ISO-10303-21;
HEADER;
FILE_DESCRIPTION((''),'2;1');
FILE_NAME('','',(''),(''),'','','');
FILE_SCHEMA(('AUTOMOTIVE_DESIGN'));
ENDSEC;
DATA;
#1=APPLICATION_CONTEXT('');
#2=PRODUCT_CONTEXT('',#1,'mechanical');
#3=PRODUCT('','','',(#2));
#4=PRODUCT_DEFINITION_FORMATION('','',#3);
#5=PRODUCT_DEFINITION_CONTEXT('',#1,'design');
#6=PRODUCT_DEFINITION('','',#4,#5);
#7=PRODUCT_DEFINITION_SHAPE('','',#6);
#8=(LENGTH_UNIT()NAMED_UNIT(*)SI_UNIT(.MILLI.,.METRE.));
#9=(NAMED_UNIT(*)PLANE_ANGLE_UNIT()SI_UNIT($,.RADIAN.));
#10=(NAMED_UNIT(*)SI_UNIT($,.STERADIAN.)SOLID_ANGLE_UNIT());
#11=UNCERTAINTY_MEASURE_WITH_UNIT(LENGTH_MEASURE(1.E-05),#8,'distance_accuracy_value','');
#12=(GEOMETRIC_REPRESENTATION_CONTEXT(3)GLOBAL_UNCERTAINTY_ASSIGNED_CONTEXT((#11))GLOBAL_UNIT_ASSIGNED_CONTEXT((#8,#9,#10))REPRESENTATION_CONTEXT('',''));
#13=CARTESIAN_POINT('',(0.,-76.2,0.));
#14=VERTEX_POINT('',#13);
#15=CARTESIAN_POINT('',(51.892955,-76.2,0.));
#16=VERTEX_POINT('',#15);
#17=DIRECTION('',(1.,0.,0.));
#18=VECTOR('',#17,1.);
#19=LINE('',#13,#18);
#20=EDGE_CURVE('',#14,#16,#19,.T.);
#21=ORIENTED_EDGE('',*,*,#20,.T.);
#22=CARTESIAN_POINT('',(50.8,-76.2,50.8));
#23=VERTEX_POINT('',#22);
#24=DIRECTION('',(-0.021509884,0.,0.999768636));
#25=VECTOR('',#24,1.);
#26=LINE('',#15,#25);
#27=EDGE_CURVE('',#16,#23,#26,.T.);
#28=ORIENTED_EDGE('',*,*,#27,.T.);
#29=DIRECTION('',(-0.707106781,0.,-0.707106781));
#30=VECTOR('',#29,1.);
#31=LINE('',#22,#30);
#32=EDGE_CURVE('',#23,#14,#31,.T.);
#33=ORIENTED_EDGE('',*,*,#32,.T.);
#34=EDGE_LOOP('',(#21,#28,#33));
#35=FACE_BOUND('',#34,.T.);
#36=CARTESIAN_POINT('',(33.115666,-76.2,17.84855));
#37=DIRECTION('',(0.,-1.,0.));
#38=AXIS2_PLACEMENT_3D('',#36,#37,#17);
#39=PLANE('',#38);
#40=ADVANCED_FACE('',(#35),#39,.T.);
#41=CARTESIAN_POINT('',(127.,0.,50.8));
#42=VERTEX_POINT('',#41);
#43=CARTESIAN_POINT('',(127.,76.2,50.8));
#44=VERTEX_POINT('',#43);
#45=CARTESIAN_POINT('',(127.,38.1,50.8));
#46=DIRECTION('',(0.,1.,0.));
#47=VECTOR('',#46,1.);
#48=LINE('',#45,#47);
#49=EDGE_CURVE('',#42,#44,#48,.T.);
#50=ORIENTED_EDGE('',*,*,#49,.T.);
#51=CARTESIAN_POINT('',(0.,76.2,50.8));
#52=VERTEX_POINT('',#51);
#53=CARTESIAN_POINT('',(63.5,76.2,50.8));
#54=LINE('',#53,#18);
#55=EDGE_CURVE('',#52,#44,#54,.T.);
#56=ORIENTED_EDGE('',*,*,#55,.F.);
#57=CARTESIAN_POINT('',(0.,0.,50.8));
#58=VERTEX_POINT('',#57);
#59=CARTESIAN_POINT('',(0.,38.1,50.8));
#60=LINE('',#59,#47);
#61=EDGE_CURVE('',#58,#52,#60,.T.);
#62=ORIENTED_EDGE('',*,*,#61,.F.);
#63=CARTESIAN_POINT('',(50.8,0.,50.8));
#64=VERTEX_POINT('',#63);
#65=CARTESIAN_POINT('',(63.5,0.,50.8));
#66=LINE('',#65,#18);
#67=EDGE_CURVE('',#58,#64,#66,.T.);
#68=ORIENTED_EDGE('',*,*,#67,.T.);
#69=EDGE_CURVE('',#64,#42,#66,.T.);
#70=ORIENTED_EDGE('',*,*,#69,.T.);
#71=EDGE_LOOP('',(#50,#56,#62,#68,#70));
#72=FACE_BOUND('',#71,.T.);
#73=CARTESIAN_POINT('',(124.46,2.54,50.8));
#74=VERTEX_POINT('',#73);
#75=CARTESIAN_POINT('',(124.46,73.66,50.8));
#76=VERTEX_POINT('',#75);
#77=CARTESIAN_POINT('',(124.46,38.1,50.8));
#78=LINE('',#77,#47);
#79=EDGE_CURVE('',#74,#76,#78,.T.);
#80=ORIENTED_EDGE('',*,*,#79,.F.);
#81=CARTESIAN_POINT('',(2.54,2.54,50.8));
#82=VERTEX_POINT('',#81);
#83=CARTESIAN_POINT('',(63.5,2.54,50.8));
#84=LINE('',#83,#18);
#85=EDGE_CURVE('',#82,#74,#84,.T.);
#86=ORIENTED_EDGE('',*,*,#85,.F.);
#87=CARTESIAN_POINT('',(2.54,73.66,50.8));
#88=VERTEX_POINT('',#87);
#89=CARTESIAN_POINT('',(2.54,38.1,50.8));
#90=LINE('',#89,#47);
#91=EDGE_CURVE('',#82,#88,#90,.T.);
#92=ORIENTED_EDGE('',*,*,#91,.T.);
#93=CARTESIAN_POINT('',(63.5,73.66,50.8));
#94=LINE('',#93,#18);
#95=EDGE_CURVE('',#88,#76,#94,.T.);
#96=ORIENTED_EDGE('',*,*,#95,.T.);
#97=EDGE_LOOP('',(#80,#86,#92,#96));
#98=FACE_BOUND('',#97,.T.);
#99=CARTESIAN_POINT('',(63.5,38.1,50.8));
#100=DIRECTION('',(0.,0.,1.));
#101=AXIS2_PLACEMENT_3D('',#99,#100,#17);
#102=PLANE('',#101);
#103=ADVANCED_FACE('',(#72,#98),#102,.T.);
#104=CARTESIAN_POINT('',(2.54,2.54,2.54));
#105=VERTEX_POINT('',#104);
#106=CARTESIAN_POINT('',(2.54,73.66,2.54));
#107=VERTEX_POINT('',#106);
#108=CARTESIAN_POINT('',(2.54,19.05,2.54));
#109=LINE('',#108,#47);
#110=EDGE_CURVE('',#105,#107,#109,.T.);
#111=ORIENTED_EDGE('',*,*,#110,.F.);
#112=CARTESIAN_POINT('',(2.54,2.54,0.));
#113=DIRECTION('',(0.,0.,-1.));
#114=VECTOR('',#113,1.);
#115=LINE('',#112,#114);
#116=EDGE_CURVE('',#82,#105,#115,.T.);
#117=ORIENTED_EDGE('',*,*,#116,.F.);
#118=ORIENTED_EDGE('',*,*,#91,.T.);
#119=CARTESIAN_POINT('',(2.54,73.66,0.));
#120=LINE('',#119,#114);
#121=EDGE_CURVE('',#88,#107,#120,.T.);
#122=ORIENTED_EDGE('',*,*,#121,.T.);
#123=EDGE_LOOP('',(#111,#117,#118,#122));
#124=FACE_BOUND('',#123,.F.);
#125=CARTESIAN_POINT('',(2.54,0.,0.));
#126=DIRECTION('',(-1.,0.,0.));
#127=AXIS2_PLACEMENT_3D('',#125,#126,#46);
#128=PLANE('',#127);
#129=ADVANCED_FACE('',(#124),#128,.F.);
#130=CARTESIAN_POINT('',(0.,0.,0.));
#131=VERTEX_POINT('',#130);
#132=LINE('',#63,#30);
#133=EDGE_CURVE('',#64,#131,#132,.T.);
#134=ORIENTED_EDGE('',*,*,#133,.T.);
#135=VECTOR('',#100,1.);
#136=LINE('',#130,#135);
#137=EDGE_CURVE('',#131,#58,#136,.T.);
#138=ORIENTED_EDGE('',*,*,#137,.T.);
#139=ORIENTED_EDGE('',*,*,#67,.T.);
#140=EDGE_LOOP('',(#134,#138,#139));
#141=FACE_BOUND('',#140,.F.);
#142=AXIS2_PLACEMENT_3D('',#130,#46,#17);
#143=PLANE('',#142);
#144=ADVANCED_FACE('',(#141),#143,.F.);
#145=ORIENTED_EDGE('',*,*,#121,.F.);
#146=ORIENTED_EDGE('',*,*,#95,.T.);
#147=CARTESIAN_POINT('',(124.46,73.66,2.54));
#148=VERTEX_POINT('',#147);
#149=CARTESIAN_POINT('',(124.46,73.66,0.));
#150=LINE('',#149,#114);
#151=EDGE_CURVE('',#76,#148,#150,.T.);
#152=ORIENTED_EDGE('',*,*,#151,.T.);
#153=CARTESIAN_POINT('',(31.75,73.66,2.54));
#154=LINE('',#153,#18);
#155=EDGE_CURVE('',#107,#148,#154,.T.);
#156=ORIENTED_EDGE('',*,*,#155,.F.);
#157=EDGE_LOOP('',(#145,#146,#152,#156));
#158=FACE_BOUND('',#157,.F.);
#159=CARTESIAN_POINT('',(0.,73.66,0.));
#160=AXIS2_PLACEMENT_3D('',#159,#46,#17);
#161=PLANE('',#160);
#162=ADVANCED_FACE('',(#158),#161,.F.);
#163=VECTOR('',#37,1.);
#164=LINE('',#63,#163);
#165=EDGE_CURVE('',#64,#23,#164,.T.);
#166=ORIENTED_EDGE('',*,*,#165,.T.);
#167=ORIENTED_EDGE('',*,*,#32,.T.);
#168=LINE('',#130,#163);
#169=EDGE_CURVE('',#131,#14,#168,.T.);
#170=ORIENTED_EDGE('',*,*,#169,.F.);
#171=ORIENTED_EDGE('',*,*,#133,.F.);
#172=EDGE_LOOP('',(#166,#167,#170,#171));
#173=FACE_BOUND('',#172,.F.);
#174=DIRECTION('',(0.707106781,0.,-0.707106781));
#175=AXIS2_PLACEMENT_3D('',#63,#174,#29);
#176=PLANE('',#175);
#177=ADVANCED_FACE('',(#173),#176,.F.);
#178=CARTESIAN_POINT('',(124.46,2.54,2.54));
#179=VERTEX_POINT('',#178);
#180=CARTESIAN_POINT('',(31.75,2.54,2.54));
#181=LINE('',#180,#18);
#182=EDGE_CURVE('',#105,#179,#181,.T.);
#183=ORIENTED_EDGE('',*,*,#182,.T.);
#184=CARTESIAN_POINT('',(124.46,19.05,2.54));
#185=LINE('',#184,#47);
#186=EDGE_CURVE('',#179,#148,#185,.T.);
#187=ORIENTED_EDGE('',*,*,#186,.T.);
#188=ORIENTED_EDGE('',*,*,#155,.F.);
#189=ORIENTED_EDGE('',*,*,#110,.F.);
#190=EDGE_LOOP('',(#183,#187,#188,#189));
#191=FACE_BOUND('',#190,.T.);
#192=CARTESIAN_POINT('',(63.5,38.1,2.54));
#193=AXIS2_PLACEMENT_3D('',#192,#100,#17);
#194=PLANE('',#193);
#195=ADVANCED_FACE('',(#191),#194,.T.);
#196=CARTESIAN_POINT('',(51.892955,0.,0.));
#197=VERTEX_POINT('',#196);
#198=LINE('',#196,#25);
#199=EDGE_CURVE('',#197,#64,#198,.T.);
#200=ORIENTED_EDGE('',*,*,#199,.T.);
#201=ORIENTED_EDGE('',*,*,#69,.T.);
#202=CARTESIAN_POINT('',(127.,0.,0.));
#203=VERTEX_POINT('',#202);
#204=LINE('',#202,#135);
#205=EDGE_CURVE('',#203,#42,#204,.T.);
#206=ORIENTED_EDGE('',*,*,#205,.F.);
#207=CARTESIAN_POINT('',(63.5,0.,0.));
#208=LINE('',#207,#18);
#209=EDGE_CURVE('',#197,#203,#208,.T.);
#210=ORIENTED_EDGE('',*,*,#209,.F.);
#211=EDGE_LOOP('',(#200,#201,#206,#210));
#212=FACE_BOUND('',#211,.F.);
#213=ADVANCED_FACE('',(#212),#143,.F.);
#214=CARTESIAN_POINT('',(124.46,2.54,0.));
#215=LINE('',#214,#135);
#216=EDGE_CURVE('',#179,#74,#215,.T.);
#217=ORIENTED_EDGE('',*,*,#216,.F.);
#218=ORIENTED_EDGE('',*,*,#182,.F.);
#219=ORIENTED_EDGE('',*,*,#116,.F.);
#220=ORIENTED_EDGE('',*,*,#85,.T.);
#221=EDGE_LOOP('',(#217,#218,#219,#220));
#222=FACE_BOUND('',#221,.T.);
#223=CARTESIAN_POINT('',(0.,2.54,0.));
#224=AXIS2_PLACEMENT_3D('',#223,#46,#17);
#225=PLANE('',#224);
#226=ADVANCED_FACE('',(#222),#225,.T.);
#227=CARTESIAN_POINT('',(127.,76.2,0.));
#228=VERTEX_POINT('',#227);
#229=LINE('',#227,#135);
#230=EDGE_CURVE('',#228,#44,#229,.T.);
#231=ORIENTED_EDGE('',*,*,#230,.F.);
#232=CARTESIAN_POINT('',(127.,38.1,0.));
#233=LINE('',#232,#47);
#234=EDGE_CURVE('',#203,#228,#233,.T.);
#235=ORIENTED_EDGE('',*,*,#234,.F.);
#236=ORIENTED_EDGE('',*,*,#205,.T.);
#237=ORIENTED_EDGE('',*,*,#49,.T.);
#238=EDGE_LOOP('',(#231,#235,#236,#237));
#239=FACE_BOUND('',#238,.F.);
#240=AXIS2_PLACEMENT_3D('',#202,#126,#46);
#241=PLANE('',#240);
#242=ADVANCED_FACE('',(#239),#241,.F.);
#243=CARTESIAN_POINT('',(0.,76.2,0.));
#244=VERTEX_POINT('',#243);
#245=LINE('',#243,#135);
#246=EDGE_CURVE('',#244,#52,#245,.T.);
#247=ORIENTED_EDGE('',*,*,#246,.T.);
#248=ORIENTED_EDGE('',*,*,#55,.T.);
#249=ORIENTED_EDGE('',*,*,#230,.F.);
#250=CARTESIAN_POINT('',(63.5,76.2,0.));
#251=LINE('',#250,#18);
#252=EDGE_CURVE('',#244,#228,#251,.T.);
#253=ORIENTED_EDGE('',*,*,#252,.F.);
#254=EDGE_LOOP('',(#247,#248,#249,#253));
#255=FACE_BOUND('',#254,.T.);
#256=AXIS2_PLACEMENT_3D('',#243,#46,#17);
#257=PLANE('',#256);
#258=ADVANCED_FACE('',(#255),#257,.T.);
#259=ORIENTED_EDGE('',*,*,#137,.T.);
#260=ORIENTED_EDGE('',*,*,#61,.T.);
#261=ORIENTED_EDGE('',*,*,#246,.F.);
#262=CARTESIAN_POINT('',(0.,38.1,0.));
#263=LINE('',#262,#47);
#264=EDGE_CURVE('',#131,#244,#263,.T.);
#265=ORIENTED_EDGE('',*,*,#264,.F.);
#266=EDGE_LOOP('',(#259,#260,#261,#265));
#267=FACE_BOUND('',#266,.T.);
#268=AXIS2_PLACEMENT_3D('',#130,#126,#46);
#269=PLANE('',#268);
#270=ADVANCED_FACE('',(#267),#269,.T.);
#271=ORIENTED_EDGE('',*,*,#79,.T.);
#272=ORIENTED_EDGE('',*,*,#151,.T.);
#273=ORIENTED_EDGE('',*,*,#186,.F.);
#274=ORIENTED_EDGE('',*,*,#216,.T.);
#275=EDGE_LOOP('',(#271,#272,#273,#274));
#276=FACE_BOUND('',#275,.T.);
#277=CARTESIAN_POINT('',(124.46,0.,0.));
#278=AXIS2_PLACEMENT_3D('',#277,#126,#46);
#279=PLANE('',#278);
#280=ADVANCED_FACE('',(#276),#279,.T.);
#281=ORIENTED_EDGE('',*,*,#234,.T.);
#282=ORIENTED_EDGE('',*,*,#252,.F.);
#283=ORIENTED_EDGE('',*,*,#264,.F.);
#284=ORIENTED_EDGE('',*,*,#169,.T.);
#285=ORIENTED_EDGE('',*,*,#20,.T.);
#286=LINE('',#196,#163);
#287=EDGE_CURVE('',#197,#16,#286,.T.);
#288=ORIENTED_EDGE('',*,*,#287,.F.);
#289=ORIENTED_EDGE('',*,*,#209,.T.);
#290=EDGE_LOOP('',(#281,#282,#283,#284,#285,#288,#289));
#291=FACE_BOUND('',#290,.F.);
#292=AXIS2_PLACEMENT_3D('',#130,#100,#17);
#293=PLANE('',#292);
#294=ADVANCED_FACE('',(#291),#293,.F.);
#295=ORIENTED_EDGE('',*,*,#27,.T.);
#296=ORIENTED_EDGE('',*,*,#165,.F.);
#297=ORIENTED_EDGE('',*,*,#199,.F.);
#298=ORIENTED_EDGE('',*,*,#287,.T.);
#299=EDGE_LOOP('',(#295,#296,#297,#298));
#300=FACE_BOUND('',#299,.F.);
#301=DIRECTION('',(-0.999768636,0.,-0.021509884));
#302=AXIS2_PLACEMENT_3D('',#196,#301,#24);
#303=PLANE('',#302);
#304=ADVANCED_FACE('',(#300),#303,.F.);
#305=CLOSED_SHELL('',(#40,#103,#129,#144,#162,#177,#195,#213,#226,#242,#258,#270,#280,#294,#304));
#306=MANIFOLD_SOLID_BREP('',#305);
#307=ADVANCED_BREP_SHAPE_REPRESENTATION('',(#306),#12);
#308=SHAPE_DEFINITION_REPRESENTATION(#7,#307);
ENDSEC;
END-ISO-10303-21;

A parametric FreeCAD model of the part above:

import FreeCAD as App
import Part
import Sketcher

V = App.Vector
Q = App.Units.Quantity


def faces_at(feature, points):
    """Names of the faces that lie closest to the given points."""
    faces = feature.Shape.Faces
    near = lambda p: min(range(len(faces)), key=lambda i: faces[i].distToShape(Part.Vertex(*p))[0])
    return sorted({f"Face{near(p) + 1}" for p in points})


def add_polygon(sketch, points):
    """Adds a closed chain of lines whose ends are joined by coincident constraints."""
    first, n = sketch.GeometryCount, len(points)
    for a, b in zip(points, points[1:] + points[:1]):
        sketch.addGeometry(Part.LineSegment(App.Vector(*a, 0), App.Vector(*b, 0)), False)
    for i in range(n):
        sketch.addConstraint(Sketcher.Constraint("Coincident", first + i, 2, first + (i + 1) % n, 1))

doc = App.newDocument("Part")
body = doc.addObject("PartDesign::Body", "Body")

sketch1 = doc.addObject("Sketcher::SketchObject", "Sketch")
body.addObject(sketch1)
sketch1.AttachmentSupport = (doc.XY_Plane, [""])
sketch1.MapMode = "FlatFace"
add_polygon(sketch1, [(0, 76), (0, 0), (127, 0), (127, 76)])
sketch1.addConstraint([
    Sketcher.Constraint("Vertical", 0),
    Sketcher.Constraint("Horizontal", 1),
    Sketcher.Constraint("Vertical", 2),
    Sketcher.Constraint("Horizontal", 3),
    Sketcher.Constraint("Coincident", 0, 2, -1, 1),
    Sketcher.Constraint("DistanceX", 1, 1, 1, 2, Q("5 in")),
    Sketcher.Constraint("DistanceY", 0, 2, 0, 1, Q("3 in")),
])
pad1 = doc.addObject("PartDesign::Pad", "Pad")
body.addObject(pad1)
pad1.Profile = sketch1
pad1.Length = Q("2 in")
doc.recompute()

thickness = doc.addObject("PartDesign::Thickness", "Thickness")
body.addObject(thickness)
thickness.Base = (pad1, faces_at(pad1, [(63.5, 38.1, 50.8)]))
thickness.Value = Q("0.1 in")
thickness.Reversed = True
thickness.Join = "Arc"

sketch2 = doc.addObject("Sketcher::SketchObject", "Sketch001")
body.addObject(sketch2)
sketch2.AttachmentSupport = (doc.XZ_Plane, [""])
sketch2.MapMode = "FlatFace"
add_polygon(sketch2, [(51, 51), (0, 0), (52, 0)])
sketch2.addConstraint([
    Sketcher.Constraint("Horizontal", 1),
    Sketcher.Constraint("Coincident", 0, 2, -1, 1),
    Sketcher.Constraint("DistanceX", -1, 1, 2, 2, Q("2 in")),
    Sketcher.Constraint("DistanceY", -1, 1, 2, 2, Q("2 in")),
    Sketcher.Constraint("DistanceX", 1, 1, 1, 2, Q("51.892955 mm")),
])
pad2 = doc.addObject("PartDesign::Pad", "Pad001")
body.addObject(pad2)
pad2.Profile = sketch2
pad2.Length = Q("3 in")

doc.recompute()
